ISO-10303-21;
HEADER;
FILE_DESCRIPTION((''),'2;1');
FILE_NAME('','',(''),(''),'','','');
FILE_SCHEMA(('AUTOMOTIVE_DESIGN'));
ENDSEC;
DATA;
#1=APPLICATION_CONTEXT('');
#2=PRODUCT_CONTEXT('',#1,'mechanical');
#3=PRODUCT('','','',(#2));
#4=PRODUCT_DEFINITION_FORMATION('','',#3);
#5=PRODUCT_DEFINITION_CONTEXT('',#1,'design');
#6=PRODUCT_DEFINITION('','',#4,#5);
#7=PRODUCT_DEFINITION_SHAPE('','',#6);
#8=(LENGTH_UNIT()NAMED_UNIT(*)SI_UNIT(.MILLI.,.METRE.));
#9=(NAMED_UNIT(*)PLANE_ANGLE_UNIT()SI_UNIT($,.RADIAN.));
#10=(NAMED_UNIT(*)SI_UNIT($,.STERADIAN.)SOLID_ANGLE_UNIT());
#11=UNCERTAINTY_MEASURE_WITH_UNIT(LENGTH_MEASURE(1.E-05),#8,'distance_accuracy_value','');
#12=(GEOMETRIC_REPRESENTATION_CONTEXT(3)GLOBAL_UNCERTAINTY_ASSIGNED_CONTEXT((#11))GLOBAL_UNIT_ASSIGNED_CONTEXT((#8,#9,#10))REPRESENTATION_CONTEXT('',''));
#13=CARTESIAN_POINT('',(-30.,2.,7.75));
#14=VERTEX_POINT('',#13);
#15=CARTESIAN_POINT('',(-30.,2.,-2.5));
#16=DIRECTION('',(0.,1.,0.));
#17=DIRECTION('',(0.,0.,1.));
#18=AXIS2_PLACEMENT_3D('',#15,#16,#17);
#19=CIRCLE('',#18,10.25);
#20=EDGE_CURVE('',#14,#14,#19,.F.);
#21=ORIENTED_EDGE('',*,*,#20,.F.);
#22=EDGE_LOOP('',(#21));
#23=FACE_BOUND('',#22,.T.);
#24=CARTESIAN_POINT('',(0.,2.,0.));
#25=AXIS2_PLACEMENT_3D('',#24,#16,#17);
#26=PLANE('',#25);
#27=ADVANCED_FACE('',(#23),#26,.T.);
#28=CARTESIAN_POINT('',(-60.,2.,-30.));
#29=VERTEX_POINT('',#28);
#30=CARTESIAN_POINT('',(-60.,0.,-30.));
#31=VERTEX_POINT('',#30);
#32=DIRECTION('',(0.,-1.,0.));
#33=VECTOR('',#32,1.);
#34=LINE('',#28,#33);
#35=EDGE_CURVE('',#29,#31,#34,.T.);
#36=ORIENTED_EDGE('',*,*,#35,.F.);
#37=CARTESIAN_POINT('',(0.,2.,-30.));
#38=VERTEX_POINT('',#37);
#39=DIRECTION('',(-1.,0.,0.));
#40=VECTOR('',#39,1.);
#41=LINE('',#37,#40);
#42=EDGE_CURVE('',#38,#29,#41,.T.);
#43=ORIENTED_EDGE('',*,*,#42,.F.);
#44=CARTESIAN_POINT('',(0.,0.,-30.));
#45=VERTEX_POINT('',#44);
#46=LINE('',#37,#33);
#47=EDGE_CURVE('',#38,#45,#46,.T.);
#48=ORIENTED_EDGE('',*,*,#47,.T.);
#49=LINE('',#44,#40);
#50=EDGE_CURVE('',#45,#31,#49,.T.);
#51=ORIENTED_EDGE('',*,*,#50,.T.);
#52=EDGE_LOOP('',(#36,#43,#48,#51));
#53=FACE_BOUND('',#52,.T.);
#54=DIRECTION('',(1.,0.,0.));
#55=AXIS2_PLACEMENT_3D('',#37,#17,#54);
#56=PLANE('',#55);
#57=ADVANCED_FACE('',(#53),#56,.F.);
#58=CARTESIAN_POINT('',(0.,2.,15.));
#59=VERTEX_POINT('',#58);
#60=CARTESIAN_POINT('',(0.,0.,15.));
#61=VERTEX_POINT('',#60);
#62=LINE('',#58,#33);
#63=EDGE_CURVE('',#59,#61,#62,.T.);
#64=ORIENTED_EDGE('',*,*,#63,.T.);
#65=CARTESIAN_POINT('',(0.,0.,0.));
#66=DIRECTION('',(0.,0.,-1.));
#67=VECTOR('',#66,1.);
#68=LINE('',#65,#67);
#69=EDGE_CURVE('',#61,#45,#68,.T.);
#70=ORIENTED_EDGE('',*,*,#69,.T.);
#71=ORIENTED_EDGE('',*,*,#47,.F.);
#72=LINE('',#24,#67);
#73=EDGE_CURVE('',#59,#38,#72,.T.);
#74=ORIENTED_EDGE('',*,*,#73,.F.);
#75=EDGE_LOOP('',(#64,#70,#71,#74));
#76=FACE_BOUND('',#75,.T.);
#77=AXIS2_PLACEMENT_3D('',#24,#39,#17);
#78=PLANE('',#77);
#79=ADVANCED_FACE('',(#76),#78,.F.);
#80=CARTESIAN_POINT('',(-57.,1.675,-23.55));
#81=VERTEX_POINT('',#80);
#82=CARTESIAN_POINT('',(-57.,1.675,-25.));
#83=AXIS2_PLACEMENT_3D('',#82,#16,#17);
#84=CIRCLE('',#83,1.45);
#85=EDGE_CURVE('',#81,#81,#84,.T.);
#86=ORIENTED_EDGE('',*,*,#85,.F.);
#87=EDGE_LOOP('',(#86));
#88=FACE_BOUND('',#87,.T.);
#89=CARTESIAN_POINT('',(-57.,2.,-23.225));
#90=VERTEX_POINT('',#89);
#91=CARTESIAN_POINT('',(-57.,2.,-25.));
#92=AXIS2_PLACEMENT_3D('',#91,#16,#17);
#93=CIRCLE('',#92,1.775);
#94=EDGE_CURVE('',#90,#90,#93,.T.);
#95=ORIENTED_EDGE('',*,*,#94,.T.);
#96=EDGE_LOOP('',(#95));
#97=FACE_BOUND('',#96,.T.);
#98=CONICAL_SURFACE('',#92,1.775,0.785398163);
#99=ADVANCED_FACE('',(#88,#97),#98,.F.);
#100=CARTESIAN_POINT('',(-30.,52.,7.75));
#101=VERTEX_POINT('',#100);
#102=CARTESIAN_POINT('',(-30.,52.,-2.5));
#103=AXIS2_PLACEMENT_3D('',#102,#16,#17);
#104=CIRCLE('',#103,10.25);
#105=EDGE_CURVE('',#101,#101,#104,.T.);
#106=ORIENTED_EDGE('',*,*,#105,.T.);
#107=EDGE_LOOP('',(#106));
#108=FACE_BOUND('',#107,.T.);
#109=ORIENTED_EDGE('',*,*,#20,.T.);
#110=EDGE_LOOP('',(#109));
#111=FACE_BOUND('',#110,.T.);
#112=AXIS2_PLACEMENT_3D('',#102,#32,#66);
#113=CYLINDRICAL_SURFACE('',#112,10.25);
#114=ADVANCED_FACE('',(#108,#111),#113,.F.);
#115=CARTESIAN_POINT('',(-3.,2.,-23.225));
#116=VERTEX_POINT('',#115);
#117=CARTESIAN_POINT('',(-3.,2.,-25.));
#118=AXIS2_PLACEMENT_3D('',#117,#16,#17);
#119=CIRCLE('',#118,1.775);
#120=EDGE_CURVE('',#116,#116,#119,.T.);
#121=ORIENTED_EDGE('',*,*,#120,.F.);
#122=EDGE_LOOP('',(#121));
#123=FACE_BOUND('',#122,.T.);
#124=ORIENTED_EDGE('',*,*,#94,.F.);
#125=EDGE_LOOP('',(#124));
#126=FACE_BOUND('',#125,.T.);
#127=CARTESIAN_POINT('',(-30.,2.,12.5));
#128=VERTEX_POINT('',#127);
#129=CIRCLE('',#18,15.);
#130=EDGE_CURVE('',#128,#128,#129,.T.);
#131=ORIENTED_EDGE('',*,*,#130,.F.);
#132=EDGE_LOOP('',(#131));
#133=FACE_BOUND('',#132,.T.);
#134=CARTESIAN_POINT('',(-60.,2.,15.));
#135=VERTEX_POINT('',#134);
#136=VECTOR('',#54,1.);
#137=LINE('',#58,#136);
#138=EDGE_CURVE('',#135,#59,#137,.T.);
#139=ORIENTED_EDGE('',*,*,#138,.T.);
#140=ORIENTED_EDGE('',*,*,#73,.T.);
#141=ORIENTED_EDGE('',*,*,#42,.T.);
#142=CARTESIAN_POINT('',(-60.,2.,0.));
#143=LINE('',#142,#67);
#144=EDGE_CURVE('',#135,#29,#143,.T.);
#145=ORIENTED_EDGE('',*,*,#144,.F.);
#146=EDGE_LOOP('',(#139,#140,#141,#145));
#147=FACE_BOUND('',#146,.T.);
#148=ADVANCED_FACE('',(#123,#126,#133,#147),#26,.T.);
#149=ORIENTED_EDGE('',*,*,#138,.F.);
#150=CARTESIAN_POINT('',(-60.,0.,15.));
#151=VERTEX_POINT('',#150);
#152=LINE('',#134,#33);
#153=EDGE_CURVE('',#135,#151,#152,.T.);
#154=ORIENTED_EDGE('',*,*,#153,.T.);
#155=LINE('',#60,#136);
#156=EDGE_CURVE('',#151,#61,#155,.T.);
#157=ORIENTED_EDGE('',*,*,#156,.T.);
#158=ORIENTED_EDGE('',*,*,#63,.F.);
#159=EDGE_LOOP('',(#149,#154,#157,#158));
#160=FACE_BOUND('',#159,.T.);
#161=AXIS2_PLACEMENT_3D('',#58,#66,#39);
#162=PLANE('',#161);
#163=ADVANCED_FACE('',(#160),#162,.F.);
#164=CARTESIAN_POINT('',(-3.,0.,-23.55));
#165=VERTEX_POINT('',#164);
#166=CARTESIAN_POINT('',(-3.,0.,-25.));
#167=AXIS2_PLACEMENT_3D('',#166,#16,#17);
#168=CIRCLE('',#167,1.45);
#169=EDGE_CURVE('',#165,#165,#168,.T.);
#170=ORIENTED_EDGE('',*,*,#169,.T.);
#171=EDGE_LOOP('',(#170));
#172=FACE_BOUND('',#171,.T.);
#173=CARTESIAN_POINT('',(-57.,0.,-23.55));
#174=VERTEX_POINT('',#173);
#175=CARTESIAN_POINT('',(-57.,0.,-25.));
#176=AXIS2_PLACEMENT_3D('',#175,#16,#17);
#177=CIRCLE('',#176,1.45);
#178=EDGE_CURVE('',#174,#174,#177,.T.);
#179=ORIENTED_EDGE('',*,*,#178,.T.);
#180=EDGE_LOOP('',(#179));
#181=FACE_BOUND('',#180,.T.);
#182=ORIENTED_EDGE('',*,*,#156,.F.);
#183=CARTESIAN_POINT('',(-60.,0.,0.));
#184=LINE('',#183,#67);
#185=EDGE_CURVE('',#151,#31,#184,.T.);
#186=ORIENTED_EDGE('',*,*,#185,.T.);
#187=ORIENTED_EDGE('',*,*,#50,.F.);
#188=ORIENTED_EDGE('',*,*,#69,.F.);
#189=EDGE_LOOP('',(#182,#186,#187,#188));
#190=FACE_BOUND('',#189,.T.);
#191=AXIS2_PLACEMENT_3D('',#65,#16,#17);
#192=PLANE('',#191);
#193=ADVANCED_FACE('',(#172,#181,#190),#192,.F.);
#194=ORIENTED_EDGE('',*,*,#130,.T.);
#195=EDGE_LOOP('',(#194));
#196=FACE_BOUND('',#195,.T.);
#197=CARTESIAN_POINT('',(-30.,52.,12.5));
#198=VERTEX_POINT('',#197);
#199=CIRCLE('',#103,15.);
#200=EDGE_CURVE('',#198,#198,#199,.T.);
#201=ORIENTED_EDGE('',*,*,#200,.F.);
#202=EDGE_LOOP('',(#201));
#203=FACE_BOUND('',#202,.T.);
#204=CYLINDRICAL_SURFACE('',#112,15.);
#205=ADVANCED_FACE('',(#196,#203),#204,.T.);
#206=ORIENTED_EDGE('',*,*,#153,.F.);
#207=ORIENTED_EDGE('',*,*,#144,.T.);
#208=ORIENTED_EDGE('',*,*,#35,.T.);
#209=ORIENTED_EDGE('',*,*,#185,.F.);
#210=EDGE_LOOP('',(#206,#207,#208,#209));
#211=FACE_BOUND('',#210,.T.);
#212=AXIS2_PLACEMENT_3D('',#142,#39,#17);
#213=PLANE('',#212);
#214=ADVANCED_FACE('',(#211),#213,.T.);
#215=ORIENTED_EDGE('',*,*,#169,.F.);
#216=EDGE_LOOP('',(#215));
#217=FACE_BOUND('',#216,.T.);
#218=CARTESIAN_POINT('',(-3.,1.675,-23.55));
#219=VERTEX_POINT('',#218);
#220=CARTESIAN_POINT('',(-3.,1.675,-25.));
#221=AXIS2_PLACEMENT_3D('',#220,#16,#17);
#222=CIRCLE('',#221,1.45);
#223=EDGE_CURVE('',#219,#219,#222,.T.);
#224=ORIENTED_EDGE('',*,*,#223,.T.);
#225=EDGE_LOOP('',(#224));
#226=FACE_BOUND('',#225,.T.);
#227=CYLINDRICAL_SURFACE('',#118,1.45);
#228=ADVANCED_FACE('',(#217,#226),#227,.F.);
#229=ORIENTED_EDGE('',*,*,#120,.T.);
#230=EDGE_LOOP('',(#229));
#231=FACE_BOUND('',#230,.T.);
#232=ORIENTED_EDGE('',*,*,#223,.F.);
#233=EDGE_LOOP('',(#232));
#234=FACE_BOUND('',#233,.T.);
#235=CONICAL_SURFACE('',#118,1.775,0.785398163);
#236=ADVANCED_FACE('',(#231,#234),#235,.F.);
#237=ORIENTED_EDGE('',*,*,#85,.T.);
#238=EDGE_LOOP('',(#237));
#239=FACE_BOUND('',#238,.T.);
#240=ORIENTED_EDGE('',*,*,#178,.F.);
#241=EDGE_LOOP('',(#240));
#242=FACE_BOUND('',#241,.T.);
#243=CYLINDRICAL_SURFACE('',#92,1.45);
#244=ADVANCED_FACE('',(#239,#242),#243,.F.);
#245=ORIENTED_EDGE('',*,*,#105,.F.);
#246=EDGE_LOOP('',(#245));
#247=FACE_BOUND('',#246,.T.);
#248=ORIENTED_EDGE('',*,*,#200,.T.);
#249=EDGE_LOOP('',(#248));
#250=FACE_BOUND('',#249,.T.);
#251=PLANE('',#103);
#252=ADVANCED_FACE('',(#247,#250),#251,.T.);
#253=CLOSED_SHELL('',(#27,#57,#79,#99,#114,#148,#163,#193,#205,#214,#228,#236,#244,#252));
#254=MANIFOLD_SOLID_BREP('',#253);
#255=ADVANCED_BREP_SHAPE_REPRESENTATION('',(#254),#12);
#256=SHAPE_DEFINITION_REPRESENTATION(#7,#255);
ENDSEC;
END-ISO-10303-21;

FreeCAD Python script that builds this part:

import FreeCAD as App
import Part
import Sketcher
Q = App.Units.Quantity

doc = App.newDocument("Part")
body = doc.addObject("PartDesign::Body", "Body")

# Sketch on XZ plane
sketch1 = doc.addObject("Sketcher::SketchObject", "Sketch")
body.addObject(sketch1)
sketch1.AttachmentSupport = (doc.XZ_Plane, [""])
sketch1.MapMode = "FlatFace"
sketch1.addGeometry(Part.LineSegment(App.Vector(0, 15, 0), App.Vector(0, -30, 0)), False)
sketch1.addGeometry(Part.LineSegment(App.Vector(0, -30, 0), App.Vector(-60, -30, 0)), False)
sketch1.addGeometry(Part.LineSegment(App.Vector(-60, -30, 0), App.Vector(-60, 15, 0)), False)
sketch1.addGeometry(Part.LineSegment(App.Vector(-60, 15, 0), App.Vector(0, 15, 0)), False)
sketch1.addConstraint(Sketcher.Constraint("Coincident", 0, 2, 1, 1))
sketch1.addConstraint(Sketcher.Constraint("Coincident", 1, 2, 2, 1))
sketch1.addConstraint(Sketcher.Constraint("Coincident", 2, 2, 3, 1))
sketch1.addConstraint(Sketcher.Constraint("Coincident", 3, 2, 0, 1))
sketch1.addConstraint(Sketcher.Constraint("Vertical", 0))
sketch1.addConstraint(Sketcher.Constraint("Horizontal", 1))
sketch1.addConstraint(Sketcher.Constraint("Vertical", 2))
sketch1.addConstraint(Sketcher.Constraint("Horizontal", 3))
sketch1.addConstraint(Sketcher.Constraint("PointOnObject", 0, 2, -2))
sketch1.addConstraint(Sketcher.Constraint("DistanceX", 1, 2, 1, 1, Q("60 mm")))
sketch1.addConstraint(Sketcher.Constraint("DistanceY", 0, 2, 0, 1, Q("45 mm")))
sketch1.addConstraint(Sketcher.Constraint("DistanceY", 0, 2, -1, 1, Q("30 mm")))
pad1 = doc.addObject("PartDesign::Pad", "Pad")
body.addObject(pad1)
pad1.Profile = sketch1
pad1.Length = 2
pad1.Reversed = True

# Sketch on XZ plane
sketch2 = doc.addObject("Sketcher::SketchObject", "Sketch001")
body.addObject(sketch2)
sketch2.AttachmentSupport = (doc.XZ_Plane, [""])
sketch2.MapMode = "FlatFace"
sketch2.AttachmentOffset = App.Placement(App.Vector(0, 0, -2), App.Rotation())
sketch2.addGeometry(Part.Circle(App.Vector(-57, -25, 0), App.Vector(0, 0, 1), 1.4), False)
sketch2.addGeometry(Part.Circle(App.Vector(-3, -25, 0), App.Vector(0, 0, 1), 1.4), False)
sketch2.addConstraint(Sketcher.Constraint("Equal", 0, 1))
sketch2.addConstraint(Sketcher.Constraint("Horizontal", 0, 3, 1, 3))
sketch2.addConstraint(Sketcher.Constraint("Diameter", 0, Q("2.9 mm")))
sketch2.addConstraint(Sketcher.Constraint("DistanceX", 0, 3, -1, 1, Q("57 mm")))
sketch2.addConstraint(Sketcher.Constraint("DistanceY", 0, 3, -1, 1, Q("25 mm")))
sketch2.addConstraint(Sketcher.Constraint("DistanceX", 1, 3, -1, 1, Q("3 mm")))
doc.recompute()
hole = doc.addObject("PartDesign::Hole", "Hole")
body.addObject(hole)
hole.Profile = sketch2
hole.ThreadType = "None"
hole.Diameter = 2.9
hole.DepthType = "Dimension"
hole.Depth = 8.8
hole.DrillPoint = "Angled"
hole.DrillPointAngle = 118
hole.HoleCutType = "Countersink"
hole.HoleCutDiameter = 3.55
hole.HoleCutCountersinkAngle = 90
hole.Reversed = True

# Sketch on XZ plane
sketch3 = doc.addObject("Sketcher::SketchObject", "Sketch002")
body.addObject(sketch3)
sketch3.AttachmentSupport = (doc.XZ_Plane, [""])
sketch3.MapMode = "FlatFace"
sketch3.AttachmentOffset = App.Placement(App.Vector(0, 0, -2), App.Rotation())
sketch3.addGeometry(Part.Circle(App.Vector(-30, -2, 0), App.Vector(0, 0, 1), 15), False)
sketch3.addGeometry(Part.Circle(App.Vector(-30, -2, 0), App.Vector(0, 0, 1), 10), False)
sketch3.addConstraint(Sketcher.Constraint("Coincident", 1, 3, 0, 3))
sketch3.addConstraint(Sketcher.Constraint("Diameter", 0, Q("30 mm")))
sketch3.addConstraint(Sketcher.Constraint("Diameter", 1, Q("20.5 mm")))
sketch3.addConstraint(Sketcher.Constraint("DistanceX", 0, 3, -1, 1, Q("30 mm")))
sketch3.addConstraint(Sketcher.Constraint("DistanceY", 0, 3, -1, 1, Q("2.5 mm")))
pad2 = doc.addObject("PartDesign::Pad", "Pad001")
body.addObject(pad2)
pad2.Profile = sketch3
pad2.Length = 50
pad2.Reversed = True

doc.recompute()
